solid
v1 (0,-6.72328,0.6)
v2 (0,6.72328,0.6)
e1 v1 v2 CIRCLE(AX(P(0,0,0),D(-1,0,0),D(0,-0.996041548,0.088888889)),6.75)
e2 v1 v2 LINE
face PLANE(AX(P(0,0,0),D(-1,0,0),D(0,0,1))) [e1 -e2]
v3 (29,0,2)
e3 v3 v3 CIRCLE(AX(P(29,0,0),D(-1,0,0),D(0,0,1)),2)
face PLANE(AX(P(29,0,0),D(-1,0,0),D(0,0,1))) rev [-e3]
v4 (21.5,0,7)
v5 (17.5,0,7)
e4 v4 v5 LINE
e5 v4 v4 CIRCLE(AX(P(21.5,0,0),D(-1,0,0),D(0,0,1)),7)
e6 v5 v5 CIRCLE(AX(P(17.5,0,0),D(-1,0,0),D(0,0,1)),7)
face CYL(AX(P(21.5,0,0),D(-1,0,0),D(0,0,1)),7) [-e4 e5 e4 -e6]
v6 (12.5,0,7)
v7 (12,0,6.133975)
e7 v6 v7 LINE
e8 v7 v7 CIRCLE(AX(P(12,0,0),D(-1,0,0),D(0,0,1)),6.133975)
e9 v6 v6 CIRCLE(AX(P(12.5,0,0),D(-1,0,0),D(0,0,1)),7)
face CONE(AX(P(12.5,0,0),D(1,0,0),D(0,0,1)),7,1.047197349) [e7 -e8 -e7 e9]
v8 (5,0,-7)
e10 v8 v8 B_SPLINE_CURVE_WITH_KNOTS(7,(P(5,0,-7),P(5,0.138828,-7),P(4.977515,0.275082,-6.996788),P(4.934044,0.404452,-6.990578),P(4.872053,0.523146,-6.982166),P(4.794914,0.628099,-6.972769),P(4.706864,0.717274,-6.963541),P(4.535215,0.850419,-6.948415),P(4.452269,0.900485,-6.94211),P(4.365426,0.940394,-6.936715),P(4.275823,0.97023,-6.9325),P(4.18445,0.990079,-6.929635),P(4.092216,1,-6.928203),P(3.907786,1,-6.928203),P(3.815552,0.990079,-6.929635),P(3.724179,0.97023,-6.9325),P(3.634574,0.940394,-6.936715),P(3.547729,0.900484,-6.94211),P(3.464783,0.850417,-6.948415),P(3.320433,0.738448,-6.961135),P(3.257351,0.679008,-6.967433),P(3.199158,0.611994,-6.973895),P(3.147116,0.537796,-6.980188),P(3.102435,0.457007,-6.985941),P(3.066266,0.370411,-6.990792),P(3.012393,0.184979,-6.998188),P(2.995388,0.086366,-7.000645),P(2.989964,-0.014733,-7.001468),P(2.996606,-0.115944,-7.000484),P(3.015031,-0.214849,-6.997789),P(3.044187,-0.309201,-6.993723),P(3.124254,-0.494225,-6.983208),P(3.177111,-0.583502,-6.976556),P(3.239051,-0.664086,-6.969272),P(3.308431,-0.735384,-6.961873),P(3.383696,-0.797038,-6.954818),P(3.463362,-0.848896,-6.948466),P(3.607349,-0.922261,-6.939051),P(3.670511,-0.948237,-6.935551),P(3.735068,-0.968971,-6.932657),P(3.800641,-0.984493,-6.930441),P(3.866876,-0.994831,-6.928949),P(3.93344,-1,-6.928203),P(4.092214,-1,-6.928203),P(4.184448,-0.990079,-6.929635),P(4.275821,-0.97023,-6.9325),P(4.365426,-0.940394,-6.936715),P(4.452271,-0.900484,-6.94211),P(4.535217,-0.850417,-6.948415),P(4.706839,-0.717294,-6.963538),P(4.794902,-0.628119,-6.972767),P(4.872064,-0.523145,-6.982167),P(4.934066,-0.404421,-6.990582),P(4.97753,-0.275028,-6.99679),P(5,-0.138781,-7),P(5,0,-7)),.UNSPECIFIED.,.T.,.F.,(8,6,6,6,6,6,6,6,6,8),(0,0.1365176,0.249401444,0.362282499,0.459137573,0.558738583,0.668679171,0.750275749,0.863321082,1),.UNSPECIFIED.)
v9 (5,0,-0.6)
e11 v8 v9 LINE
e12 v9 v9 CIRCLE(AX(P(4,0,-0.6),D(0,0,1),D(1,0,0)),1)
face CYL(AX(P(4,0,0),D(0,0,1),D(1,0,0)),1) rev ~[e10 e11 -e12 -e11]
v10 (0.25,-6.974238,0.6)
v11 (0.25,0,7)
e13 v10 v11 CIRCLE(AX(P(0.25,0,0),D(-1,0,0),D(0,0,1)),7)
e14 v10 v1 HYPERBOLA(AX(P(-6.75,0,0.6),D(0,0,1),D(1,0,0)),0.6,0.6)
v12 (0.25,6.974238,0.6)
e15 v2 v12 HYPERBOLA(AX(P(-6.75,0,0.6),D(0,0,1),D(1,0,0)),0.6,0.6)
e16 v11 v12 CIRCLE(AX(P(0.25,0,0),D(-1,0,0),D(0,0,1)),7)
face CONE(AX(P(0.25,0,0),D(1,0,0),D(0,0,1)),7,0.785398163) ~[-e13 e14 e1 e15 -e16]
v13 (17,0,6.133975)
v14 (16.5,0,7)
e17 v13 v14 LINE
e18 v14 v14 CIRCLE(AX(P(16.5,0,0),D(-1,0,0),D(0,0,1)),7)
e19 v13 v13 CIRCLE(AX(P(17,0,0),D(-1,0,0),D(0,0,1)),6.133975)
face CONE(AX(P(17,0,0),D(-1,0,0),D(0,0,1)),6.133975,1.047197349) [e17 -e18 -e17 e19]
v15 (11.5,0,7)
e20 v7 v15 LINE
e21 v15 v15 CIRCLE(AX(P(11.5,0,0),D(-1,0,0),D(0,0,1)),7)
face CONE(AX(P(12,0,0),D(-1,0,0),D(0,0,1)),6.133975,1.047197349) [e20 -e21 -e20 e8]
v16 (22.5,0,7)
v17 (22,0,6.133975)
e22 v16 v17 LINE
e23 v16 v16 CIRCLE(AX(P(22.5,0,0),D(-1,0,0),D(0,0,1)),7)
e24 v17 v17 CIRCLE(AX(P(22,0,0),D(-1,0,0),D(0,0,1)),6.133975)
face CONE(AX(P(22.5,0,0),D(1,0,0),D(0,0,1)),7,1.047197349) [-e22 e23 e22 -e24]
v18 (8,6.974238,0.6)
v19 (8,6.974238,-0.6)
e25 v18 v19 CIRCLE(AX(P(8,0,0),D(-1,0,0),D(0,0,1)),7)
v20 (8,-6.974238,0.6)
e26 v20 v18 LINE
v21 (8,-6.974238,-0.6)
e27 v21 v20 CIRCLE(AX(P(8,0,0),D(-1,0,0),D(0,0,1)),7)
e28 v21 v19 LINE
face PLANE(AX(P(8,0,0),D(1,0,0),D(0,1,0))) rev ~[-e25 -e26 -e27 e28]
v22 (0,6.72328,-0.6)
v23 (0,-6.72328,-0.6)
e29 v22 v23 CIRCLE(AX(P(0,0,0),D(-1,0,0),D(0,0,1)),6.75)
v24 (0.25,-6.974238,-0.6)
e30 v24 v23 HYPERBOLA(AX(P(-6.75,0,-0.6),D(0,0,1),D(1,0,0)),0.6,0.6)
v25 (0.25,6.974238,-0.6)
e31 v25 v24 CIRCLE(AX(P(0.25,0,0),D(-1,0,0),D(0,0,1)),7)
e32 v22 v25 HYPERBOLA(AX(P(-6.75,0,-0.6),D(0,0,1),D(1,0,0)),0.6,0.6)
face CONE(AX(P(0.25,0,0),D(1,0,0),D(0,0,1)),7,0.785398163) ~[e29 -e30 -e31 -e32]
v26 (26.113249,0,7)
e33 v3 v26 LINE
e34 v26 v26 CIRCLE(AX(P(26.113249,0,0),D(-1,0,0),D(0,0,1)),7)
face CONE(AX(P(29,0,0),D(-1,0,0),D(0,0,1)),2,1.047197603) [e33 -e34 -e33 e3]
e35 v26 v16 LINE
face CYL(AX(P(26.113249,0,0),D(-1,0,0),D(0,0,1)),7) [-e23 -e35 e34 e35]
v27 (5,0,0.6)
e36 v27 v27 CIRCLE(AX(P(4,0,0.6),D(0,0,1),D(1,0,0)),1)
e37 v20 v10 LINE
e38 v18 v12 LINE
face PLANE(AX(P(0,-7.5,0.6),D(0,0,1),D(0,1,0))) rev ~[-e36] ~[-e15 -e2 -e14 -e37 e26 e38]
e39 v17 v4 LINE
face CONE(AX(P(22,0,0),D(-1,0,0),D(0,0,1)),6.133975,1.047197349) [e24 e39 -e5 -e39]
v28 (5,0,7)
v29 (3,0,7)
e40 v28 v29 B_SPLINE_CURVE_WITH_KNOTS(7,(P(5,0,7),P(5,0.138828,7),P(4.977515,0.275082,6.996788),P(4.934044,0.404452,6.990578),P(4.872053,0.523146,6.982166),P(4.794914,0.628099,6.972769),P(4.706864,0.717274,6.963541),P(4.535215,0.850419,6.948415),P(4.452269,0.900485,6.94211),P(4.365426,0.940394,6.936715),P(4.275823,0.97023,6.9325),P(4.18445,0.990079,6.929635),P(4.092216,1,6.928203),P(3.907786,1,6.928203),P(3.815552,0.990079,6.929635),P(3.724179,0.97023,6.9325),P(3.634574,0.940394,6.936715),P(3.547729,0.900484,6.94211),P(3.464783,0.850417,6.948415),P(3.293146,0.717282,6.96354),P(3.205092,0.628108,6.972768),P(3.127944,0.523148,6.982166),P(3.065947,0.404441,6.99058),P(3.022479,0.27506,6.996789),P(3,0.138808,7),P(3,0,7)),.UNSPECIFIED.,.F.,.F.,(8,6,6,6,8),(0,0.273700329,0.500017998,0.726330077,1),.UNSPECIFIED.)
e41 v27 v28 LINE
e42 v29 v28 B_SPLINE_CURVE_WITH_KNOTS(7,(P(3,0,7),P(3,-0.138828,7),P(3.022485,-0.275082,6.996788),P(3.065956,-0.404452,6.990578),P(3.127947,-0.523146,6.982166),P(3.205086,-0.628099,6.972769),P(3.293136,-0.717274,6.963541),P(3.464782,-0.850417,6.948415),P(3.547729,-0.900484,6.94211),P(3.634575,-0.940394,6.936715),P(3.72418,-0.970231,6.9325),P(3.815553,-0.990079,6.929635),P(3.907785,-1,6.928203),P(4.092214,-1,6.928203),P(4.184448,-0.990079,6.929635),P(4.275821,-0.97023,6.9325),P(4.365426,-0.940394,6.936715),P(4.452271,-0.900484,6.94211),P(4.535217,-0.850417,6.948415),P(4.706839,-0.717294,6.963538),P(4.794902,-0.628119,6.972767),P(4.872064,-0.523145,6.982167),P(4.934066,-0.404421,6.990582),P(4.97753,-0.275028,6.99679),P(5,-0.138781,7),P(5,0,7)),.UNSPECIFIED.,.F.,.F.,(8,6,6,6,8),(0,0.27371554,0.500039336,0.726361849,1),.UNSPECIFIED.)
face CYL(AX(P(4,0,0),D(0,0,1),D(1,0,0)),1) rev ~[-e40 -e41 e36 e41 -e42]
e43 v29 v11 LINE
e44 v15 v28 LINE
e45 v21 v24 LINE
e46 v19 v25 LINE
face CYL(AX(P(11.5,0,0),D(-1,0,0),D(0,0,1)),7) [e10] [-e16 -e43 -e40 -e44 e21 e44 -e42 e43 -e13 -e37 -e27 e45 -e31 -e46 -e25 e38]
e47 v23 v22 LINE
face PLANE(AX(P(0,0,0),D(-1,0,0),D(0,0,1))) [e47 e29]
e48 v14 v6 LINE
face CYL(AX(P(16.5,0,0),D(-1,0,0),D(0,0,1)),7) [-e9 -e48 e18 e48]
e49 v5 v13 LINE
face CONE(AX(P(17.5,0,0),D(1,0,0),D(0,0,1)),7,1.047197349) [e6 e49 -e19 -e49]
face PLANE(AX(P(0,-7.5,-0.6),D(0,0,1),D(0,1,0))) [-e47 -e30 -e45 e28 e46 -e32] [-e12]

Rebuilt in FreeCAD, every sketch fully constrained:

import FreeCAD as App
import Part
import Sketcher
Q = App.Units.Quantity


def edges_at(feature, points):
    """Names of the edges that pass closest to the given points."""
    edges = feature.Shape.Edges
    near = lambda p: min(range(len(edges)), key=lambda i: edges[i].distToShape(Part.Vertex(*p))[0])
    return sorted({f"Edge{near(p) + 1}" for p in points})


def add_polygon(sketch, points):
    """Adds a closed chain of lines whose ends are joined by coincident constraints."""
    first, n = sketch.GeometryCount, len(points)
    for a, b in zip(points, points[1:] + points[:1]):
        sketch.addGeometry(Part.LineSegment(App.Vector(*a, 0), App.Vector(*b, 0)), False)
    for i in range(n):
        sketch.addConstraint(Sketcher.Constraint("Coincident", first + i, 2, first + (i + 1) % n, 1))

doc = App.newDocument("Part")
params = doc.addObject("Spreadsheet::Sheet", "Params")
for row, (alias, value) in enumerate([
    ("sketch1_width", "29 mm"),
    ("sketch1_width2", "4 mm"),
    ("sketch1_height", "7 mm"),
    ("sketch1_height2", "2 mm"),
    ("sketch1_length", "1 mm"),
    ("revolution_angle", "360 deg"),
    ("chamfer_size", "0.25 mm"),
    ("sketch2_width", "15 mm"),
    ("sketch2_height", "1.2 mm"),
    ("pocket1_length", "8 mm"),
    ("sketch3_diameter", "2 mm"),
    ("pocket2_length", "25 mm"),
], start=1):
    params.set(f"A{row}", alias)
    params.set(f"B{row}", "=" + value)
    params.setAlias(f"B{row}", alias)

body = doc.addObject("PartDesign::Body", "Body")

# Sketch on XZ plane
sketch1 = body.newObject("Sketcher::SketchObject", "Sketch")
sketch1.AttachmentSupport = (doc.getObject("XZ_Plane"), [""])
sketch1.MapMode = "FlatFace"
add_polygon(sketch1, [(0, 7), (0, 0), (29, 0), (29, 2), (26.1, 7), (22.5, 7), (22, 6.1), (21.5, 7), (17.5, 7), (17, 6.1), (16.5, 7), (12.5, 7), (12, 6.1), (11.5, 7)])  # lines 0-13
sketch1.addConstraint(Sketcher.Constraint("Vertical", 0))
sketch1.addConstraint(Sketcher.Constraint("Horizontal", 1))
sketch1.addConstraint(Sketcher.Constraint("Vertical", 2))
sketch1.addConstraint(Sketcher.Constraint("Horizontal", 4))
sketch1.addConstraint(Sketcher.Constraint("Horizontal", 7))
sketch1.addConstraint(Sketcher.Constraint("Horizontal", 10))
sketch1.addConstraint(Sketcher.Constraint("Horizontal", 13))
sketch1.addConstraint(Sketcher.Constraint("Coincident", 0, 2, -1, 1))
sketch1.addConstraint(Sketcher.Constraint("Parallel", 3, 6))
sketch1.addConstraint(Sketcher.Constraint("Parallel", 5, 8))
sketch1.addConstraint(Sketcher.Constraint("Parallel", 6, 9))
sketch1.addConstraint(Sketcher.Constraint("Parallel", 8, 11))
sketch1.addConstraint(Sketcher.Constraint("Parallel", 9, 12))
sketch1.addConstraint(Sketcher.Constraint("Horizontal", 4, 2, 6, 2))
sketch1.addConstraint(Sketcher.Constraint("Horizontal", 5, 2, 8, 2))
sketch1.addConstraint(Sketcher.Constraint("Horizontal", 7, 2, 9, 2))
sketch1.addConstraint(Sketcher.Constraint("Horizontal", 8, 2, 11, 2))
sketch1.addConstraint(Sketcher.Constraint("Horizontal", 10, 2, 12, 2))
sketch1.addConstraint(Sketcher.Constraint("Equal", 7, 10))
sketch1.addConstraint(Sketcher.Constraint("Equal", 5, 6))
sketch1.addConstraint(Sketcher.Constraint("DistanceX", 1, 1, 1, 2, Q("29 mm")))
sketch1.addConstraint(Sketcher.Constraint("DistanceX", 7, 2, 7, 1, Q("4 mm")))
sketch1.addConstraint(Sketcher.Constraint("DistanceY", 0, 2, 0, 1, Q("7 mm")))
sketch1.addConstraint(Sketcher.Constraint("DistanceY", 2, 1, 2, 2, Q("2 mm")))
sketch1.addConstraint(Sketcher.Constraint("Angle", 3, Q("119.999997 deg")))
sketch1.addConstraint(Sketcher.Constraint("Distance", 5, Q("1 mm")))
sketch1.addConstraint(Sketcher.Constraint("DistanceX", 13, 2, 13, 1, Q("11.5 mm")))
sketch1.setExpression("Constraints[34]", "Params.sketch1_width")
sketch1.setExpression("Constraints[35]", "Params.sketch1_width2")
sketch1.setExpression("Constraints[36]", "Params.sketch1_height")
sketch1.setExpression("Constraints[37]", "Params.sketch1_height2")
sketch1.setExpression("Constraints[39]", "Params.sketch1_length")
revolution = body.newObject("PartDesign::Revolution", "Revolution")
revolution.Profile = sketch1
revolution.ReferenceAxis = (sketch1, ["H_Axis"])
revolution.setExpression("Angle", "Params.revolution_angle")
doc.recompute()

chamfer = body.newObject("PartDesign::Chamfer", "Chamfer")
chamfer.Base = (revolution, edges_at(revolution, [(0, 0, -7)]))
chamfer.setExpression("Size", "Params.chamfer_size")

# Sketch on YZ plane
sketch2 = body.newObject("Sketcher::SketchObject", "Sketch001")
sketch2.AttachmentSupport = (doc.getObject("YZ_Plane"), [""])
sketch2.MapMode = "FlatFace"
add_polygon(sketch2, [(-7.5, 0.6), (-7.5, -0.6), (7.5, -0.6), (7.5, 0.6)])  # lines 0-3
sketch2.addConstraint(Sketcher.Constraint("Vertical", 0))
sketch2.addConstraint(Sketcher.Constraint("Horizontal", 1))
sketch2.addConstraint(Sketcher.Constraint("Vertical", 2))
sketch2.addConstraint(Sketcher.Constraint("Horizontal", 3))
sketch2.addConstraint(Sketcher.Constraint("Symmetric", 0, 2, 2, 2, -1, 1))
sketch2.addConstraint(Sketcher.Constraint("DistanceX", 1, 1, 1, 2, Q("15 mm")))
sketch2.addConstraint(Sketcher.Constraint("DistanceY", 0, 2, 0, 1, Q("1.2 mm")))
sketch2.setExpression("Constraints[9]", "Params.sketch2_width")
sketch2.setExpression("Constraints[10]", "Params.sketch2_height")
pocket1 = body.newObject("PartDesign::Pocket", "Pocket")
pocket1.Profile = sketch2
pocket1.setExpression("Length", "Params.pocket1_length")
pocket1.Reversed = True

# Sketch on XY plane
sketch3 = body.newObject("Sketcher::SketchObject", "Sketch002")
sketch3.AttachmentSupport = (doc.getObject("XY_Plane"), [""])
sketch3.MapMode = "FlatFace"
sketch3.addGeometry(Part.Circle(App.Vector(4, 0, 0), App.Vector(0, 0, 1), 1), False)
sketch3.addConstraint(Sketcher.Constraint("PointOnObject", 0, 3, -1))
sketch3.addConstraint(Sketcher.Constraint("Diameter", 0, Q("2 mm")))
sketch3.addConstraint(Sketcher.Constraint("DistanceX", -1, 1, 0, 3, Q("4 mm")))
sketch3.setExpression("Constraints[1]", "Params.sketch3_diameter")
pocket2 = body.newObject("PartDesign::Pocket", "Pocket001")
pocket2.Profile = sketch3
pocket2.setExpression("Length", "Params.pocket2_length")
pocket2.Midplane = True

doc.recompute()
